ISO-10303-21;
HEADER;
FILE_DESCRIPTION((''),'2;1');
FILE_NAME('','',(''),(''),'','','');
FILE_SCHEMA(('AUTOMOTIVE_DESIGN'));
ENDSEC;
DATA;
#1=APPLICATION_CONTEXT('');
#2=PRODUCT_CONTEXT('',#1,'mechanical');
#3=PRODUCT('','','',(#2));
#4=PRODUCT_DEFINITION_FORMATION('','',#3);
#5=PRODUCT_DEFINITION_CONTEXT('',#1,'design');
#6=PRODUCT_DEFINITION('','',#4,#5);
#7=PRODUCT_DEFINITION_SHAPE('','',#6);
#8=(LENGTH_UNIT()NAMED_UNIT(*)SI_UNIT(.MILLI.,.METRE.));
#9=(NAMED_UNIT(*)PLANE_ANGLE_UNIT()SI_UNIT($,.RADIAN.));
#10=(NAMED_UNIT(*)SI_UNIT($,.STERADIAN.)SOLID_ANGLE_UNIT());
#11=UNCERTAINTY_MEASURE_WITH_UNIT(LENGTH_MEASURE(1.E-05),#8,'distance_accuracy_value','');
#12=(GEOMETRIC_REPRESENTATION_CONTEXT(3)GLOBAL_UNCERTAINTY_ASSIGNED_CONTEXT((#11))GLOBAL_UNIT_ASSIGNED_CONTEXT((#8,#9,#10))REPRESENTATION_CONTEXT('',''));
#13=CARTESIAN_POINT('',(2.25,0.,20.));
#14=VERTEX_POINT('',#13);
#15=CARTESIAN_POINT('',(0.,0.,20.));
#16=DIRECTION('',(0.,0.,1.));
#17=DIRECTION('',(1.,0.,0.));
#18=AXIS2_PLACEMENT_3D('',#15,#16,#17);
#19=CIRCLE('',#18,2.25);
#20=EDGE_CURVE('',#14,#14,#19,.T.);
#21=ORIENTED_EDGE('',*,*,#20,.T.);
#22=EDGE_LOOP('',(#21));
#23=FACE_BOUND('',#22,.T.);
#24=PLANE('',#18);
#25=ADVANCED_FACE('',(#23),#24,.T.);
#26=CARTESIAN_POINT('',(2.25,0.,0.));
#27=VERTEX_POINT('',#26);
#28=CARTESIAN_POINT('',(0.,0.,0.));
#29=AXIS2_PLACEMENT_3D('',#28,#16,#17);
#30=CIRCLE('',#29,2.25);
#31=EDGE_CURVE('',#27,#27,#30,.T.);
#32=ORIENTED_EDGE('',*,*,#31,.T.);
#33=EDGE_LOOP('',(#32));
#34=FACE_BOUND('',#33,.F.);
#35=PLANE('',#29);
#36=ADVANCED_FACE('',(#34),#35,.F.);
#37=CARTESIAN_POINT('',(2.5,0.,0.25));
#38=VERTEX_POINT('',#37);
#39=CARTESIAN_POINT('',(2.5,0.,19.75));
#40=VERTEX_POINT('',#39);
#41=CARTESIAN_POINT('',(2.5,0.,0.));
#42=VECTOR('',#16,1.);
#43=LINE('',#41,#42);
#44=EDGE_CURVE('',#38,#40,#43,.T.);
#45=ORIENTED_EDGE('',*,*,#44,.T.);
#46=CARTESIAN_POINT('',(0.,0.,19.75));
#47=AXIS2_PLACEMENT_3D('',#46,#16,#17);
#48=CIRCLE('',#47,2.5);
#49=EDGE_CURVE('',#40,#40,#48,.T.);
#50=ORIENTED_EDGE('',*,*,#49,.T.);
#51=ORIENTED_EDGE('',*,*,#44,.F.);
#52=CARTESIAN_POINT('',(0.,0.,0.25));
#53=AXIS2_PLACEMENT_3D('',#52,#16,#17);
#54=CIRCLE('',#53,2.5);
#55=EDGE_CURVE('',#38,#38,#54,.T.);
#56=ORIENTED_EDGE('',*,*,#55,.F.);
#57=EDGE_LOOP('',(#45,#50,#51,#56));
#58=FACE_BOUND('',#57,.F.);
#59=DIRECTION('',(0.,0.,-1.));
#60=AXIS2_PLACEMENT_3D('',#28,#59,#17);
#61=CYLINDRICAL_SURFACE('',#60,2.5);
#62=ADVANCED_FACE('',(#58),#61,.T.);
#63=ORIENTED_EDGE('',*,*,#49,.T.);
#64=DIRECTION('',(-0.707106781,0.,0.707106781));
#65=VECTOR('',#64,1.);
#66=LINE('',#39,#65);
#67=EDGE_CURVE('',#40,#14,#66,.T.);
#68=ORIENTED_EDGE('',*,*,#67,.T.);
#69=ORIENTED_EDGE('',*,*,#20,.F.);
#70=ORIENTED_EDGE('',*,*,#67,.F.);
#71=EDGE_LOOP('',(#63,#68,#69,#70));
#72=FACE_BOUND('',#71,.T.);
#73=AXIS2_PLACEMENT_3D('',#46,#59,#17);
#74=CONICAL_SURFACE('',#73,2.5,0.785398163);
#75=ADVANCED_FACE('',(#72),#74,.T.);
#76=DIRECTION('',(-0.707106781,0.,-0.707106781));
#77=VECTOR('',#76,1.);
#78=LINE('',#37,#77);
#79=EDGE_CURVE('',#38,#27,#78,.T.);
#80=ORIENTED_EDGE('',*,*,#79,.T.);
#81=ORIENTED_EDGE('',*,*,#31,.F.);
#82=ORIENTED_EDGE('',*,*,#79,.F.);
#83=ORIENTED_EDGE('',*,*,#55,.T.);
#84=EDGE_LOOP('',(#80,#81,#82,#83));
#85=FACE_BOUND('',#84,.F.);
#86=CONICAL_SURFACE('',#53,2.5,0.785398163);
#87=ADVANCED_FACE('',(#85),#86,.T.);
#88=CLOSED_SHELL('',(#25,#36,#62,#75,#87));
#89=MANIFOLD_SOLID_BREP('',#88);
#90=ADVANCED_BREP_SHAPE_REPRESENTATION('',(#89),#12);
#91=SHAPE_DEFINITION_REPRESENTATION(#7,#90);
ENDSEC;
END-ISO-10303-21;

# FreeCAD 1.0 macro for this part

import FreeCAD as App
import Part
import Sketcher

V = App.Vector
Q = App.Units.Quantity


def edges_at(feature, points):
    """Names of the edges that pass closest to the given points."""
    edges = feature.Shape.Edges
    near = lambda p: min(range(len(edges)), key=lambda i: edges[i].distToShape(Part.Vertex(*p))[0])
    return sorted({f"Edge{near(p) + 1}" for p in points})

doc = App.newDocument("Part")
body = doc.addObject("PartDesign::Body", "Body")

# Sketch on XY plane
sketch1 = doc.addObject("Sketcher::SketchObject", "Sketch")
body.addObject(sketch1)
sketch1.AttachmentSupport = (doc.XY_Plane, [""])
sketch1.MapMode = "FlatFace"
sketch1.addGeometry(Part.Circle(V(0, 0, 0), V(0, 0, 1), 2.5), False)
sketch1.addConstraint(Sketcher.Constraint("Coincident", 0, 3, -1, 1))
sketch1.addConstraint(Sketcher.Constraint("Diameter", 0, Q("5 mm")))
pad1 = doc.addObject("PartDesign::Pad", "Pad")
body.addObject(pad1)
pad1.Profile = sketch1
pad1.Length = 20
doc.recompute()

chamfer = doc.addObject("PartDesign::Chamfer", "Chamfer")
body.addObject(chamfer)
chamfer.Base = (pad1, edges_at(pad1, [(-2.5, 0, 0), (-2.5, 0, 20)]))
chamfer.Size = 0.25

doc.recompute()
